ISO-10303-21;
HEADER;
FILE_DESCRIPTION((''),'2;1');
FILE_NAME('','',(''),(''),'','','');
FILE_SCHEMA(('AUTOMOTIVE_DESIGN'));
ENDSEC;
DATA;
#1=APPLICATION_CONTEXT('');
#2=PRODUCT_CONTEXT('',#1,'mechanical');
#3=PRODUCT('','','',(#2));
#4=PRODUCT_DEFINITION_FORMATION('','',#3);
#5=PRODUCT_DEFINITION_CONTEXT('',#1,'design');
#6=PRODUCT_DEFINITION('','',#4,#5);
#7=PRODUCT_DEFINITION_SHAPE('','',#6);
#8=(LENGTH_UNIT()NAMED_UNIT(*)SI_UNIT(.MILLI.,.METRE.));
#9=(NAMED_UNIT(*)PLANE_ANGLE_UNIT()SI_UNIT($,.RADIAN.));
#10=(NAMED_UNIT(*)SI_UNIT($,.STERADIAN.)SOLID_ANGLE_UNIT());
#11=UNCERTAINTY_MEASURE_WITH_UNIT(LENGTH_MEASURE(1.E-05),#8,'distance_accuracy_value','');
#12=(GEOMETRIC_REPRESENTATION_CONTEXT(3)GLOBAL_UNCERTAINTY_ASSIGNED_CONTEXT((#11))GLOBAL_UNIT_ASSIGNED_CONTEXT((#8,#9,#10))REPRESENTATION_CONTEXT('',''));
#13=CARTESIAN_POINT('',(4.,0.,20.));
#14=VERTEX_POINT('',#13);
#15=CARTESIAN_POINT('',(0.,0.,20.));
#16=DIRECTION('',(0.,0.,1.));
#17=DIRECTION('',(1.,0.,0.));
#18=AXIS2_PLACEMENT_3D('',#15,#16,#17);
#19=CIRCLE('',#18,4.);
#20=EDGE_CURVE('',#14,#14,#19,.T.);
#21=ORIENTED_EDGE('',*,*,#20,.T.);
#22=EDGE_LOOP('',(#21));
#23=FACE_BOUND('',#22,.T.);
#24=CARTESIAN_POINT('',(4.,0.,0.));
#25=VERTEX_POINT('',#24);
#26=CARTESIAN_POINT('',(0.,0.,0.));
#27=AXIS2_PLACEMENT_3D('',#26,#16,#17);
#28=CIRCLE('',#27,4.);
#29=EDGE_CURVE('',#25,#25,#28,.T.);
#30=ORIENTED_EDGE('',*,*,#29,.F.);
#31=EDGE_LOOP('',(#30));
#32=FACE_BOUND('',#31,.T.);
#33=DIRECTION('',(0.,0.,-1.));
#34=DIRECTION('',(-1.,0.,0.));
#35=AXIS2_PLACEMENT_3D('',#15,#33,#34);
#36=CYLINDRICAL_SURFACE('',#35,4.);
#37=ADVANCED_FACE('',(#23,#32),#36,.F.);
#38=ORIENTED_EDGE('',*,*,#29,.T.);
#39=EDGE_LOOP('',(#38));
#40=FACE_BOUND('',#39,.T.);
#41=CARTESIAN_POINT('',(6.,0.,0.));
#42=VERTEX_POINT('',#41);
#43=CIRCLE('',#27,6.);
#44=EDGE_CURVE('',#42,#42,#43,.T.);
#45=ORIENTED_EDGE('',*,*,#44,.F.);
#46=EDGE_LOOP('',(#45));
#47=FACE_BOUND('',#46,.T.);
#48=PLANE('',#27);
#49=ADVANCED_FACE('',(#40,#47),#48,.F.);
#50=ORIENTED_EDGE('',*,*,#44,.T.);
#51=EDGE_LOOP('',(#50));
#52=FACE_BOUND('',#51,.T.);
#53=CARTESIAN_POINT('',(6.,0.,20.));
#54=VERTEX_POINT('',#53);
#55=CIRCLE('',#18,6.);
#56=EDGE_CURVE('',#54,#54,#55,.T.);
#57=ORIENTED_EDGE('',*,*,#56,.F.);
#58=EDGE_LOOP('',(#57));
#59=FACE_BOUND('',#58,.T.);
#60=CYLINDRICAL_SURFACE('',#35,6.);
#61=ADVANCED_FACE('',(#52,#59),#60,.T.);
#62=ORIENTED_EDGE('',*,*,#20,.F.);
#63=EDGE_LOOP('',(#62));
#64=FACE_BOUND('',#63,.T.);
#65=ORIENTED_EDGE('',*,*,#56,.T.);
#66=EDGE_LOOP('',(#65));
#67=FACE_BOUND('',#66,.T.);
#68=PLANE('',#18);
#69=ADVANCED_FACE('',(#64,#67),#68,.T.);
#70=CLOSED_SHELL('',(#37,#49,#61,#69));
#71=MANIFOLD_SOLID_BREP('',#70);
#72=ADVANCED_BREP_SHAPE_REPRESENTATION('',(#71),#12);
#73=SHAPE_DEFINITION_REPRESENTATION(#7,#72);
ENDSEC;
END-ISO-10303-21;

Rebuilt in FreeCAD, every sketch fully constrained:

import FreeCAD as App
import Part
import Sketcher

V = App.Vector
Q = App.Units.Quantity

doc = App.newDocument("Part")
body = doc.addObject("PartDesign::Body", "Body")

sketch1 = body.newObject("Sketcher::SketchObject", "Sketch")
sketch1.AttachmentSupport = (doc.getObject("XY_Plane"), [""])
sketch1.MapMode = "FlatFace"
sketch1.addGeometry(Part.Circle(V(0, 0, 0), V(0, 0, 1), 6), False)
sketch1.addGeometry(Part.Circle(V(0, 0, 0), V(0, 0, 1), 4), False)
sketch1.addConstraint(Sketcher.Constraint("Coincident", 0, 3, -1, 1))
sketch1.addConstraint(Sketcher.Constraint("Coincident", 1, 3, -1, 1))
sketch1.addConstraint(Sketcher.Constraint("Diameter", 0, Q("12 mm")))
sketch1.addConstraint(Sketcher.Constraint("Diameter", 1, Q("8 mm")))
pad1 = body.newObject("PartDesign::Pad", "Pad")
pad1.Profile = sketch1
pad1.Length = 20

doc.recompute()
